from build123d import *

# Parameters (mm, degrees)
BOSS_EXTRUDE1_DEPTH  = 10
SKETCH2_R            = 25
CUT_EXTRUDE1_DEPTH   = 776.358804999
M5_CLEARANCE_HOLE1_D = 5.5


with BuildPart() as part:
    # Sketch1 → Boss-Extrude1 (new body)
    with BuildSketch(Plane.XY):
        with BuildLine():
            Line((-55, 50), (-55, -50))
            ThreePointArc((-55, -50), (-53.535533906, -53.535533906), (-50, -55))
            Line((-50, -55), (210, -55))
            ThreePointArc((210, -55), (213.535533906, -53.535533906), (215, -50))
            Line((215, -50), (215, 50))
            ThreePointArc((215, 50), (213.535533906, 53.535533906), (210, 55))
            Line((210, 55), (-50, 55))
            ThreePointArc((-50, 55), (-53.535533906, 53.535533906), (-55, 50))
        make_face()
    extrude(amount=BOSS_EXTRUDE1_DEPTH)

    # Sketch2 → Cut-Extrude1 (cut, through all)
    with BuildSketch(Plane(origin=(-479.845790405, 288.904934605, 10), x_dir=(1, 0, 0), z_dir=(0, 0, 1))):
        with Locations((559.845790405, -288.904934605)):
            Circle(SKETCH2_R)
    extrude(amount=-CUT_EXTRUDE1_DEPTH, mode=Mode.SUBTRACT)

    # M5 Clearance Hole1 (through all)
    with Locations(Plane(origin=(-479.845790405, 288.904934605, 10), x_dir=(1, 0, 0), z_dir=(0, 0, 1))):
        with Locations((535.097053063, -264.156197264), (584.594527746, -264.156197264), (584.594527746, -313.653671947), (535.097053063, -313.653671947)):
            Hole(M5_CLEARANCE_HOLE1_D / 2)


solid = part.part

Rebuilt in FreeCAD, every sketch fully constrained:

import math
import FreeCAD as App
import Part
import Sketcher
from FreeCAD import Vector

doc = App.newDocument("Part")
body = doc.addObject("PartDesign::Body", "Body")

sketch1 = body.newObject("Sketcher::SketchObject", "Sketch")
sketch1.AttachmentSupport = (doc.getObject("XY_Plane"), [""])
sketch1.MapMode = "FlatFace"
sketch1.addGeometry([
    Part.LineSegment(Vector(-55, 50, 0), Vector(-55, -50, 0)),
    Part.ArcOfCircle(Part.Circle(Vector(-50, -50, 0), Vector(0, 0, 1), 5), math.radians(180), math.radians(270)),
    Part.LineSegment(Vector(-50, -55, 0), Vector(210, -55, 0)),
    Part.ArcOfCircle(Part.Circle(Vector(210, -50, 0), Vector(0, 0, 1), 5), math.radians(-90), math.radians(0)),
    Part.LineSegment(Vector(215, -50, 0), Vector(215, 50, 0)),
    Part.ArcOfCircle(Part.Circle(Vector(210, 50, 0), Vector(0, 0, 1), 5), math.radians(0), math.radians(90)),
    Part.LineSegment(Vector(210, 55, 0), Vector(-50, 55, 0)),
    Part.ArcOfCircle(Part.Circle(Vector(-50, 50, 0), Vector(0, 0, 1), 5), math.radians(90), math.radians(180)),
], False)
sketch1.addConstraint([
    Sketcher.Constraint("Tangent", 0, 2, 1, 1),
    Sketcher.Constraint("Tangent", 1, 2, 2, 1),
    Sketcher.Constraint("Tangent", 2, 2, 3, 1),
    Sketcher.Constraint("Tangent", 3, 2, 4, 1),
    Sketcher.Constraint("Tangent", 4, 2, 5, 1),
    Sketcher.Constraint("Tangent", 5, 2, 6, 1),
    Sketcher.Constraint("Tangent", 6, 2, 7, 1),
    Sketcher.Constraint("Tangent", 7, 2, 0, 1),
    Sketcher.Constraint("Vertical", 0),
    Sketcher.Constraint("Horizontal", 2),
    Sketcher.Constraint("Vertical", 4),
    Sketcher.Constraint("Horizontal", 6),
    Sketcher.Constraint("Equal", 1, 3),
    Sketcher.Constraint("Equal", 3, 5),
    Sketcher.Constraint("Equal", 5, 7),
    Sketcher.Constraint("Radius", 1, 5.0),
    Sketcher.Constraint("DistanceX", 2, 1, 2, 2, 260.0),
    Sketcher.Constraint("DistanceY", 0, 2, 0, 1, 100.0),
    Sketcher.Constraint("DistanceX", 1, 3, -1, 1, 50.0),
    Sketcher.Constraint("DistanceY", 1, 3, -1, 1, 50.0),
])
pad1 = body.newObject("PartDesign::Pad", "Pad")
pad1.Profile = sketch1
pad1.Length = 10

sketch2 = body.newObject("Sketcher::SketchObject", "Sketch001")
sketch2.AttachmentSupport = (doc.getObject("XY_Plane"), [""])
sketch2.MapMode = "FlatFace"
sketch2.AttachmentOffset = App.Placement(Vector(0, 0, 10), App.Rotation())
sketch2.addGeometry(Part.Circle(Vector(80, 0, 0), Vector(0, 0, 1), 25), False)
sketch2.addConstraint([
    Sketcher.Constraint("PointOnObject", 0, 3, -1),
    Sketcher.Constraint("Diameter", 0, 50.0),
    Sketcher.Constraint("DistanceX", -1, 1, 0, 3, 80.0),
])
pocket1 = body.newObject("PartDesign::Pocket", "Pocket")
pocket1.Profile = sketch2
pocket1.Type = "ThroughAll"

sketch3 = body.newObject("Sketcher::SketchObject", "Sketch002")
sketch3.AttachmentSupport = (doc.getObject("XY_Plane"), [""])
sketch3.MapMode = "FlatFace"
sketch3.AttachmentOffset = App.Placement(Vector(0, 0, 10), App.Rotation())
sketch3.addGeometry([
    Part.Circle(Vector(55.3, 24.7, 0), Vector(0, 0, 1), 2.8),
    Part.Circle(Vector(104.7, 24.7, 0), Vector(0, 0, 1), 2.8),
    Part.Circle(Vector(104.7, -24.7, 0), Vector(0, 0, 1), 2.8),
    Part.Circle(Vector(55.3, -24.7, 0), Vector(0, 0, 1), 2.8),
], False)
sketch3.addConstraint([
    Sketcher.Constraint("Equal", 0, 1),
    Sketcher.Constraint("Equal", 1, 2),
    Sketcher.Constraint("Equal", 2, 3),
    Sketcher.Constraint("Symmetric", 1, 3, 2, 3, -1),
    Sketcher.Constraint("Symmetric", 0, 3, 3, 3, -1),
    Sketcher.Constraint("Horizontal", 0, 3, 1, 3),
    Sketcher.Constraint("Diameter", 0, 5.5),
    Sketcher.Constraint("DistanceX", -1, 1, 0, 3, 55.251263),
    Sketcher.Constraint("DistanceY", -1, 1, 0, 3, 24.748737),
    Sketcher.Constraint("DistanceX", -1, 1, 1, 3, 104.748737),
])
doc.recompute()
hole = body.newObject("PartDesign::Hole", "Hole")
hole.Profile = sketch3
hole.ThreadType = "None"
hole.Diameter = 5.5
hole.DepthType = "ThroughAll"

doc.recompute()
